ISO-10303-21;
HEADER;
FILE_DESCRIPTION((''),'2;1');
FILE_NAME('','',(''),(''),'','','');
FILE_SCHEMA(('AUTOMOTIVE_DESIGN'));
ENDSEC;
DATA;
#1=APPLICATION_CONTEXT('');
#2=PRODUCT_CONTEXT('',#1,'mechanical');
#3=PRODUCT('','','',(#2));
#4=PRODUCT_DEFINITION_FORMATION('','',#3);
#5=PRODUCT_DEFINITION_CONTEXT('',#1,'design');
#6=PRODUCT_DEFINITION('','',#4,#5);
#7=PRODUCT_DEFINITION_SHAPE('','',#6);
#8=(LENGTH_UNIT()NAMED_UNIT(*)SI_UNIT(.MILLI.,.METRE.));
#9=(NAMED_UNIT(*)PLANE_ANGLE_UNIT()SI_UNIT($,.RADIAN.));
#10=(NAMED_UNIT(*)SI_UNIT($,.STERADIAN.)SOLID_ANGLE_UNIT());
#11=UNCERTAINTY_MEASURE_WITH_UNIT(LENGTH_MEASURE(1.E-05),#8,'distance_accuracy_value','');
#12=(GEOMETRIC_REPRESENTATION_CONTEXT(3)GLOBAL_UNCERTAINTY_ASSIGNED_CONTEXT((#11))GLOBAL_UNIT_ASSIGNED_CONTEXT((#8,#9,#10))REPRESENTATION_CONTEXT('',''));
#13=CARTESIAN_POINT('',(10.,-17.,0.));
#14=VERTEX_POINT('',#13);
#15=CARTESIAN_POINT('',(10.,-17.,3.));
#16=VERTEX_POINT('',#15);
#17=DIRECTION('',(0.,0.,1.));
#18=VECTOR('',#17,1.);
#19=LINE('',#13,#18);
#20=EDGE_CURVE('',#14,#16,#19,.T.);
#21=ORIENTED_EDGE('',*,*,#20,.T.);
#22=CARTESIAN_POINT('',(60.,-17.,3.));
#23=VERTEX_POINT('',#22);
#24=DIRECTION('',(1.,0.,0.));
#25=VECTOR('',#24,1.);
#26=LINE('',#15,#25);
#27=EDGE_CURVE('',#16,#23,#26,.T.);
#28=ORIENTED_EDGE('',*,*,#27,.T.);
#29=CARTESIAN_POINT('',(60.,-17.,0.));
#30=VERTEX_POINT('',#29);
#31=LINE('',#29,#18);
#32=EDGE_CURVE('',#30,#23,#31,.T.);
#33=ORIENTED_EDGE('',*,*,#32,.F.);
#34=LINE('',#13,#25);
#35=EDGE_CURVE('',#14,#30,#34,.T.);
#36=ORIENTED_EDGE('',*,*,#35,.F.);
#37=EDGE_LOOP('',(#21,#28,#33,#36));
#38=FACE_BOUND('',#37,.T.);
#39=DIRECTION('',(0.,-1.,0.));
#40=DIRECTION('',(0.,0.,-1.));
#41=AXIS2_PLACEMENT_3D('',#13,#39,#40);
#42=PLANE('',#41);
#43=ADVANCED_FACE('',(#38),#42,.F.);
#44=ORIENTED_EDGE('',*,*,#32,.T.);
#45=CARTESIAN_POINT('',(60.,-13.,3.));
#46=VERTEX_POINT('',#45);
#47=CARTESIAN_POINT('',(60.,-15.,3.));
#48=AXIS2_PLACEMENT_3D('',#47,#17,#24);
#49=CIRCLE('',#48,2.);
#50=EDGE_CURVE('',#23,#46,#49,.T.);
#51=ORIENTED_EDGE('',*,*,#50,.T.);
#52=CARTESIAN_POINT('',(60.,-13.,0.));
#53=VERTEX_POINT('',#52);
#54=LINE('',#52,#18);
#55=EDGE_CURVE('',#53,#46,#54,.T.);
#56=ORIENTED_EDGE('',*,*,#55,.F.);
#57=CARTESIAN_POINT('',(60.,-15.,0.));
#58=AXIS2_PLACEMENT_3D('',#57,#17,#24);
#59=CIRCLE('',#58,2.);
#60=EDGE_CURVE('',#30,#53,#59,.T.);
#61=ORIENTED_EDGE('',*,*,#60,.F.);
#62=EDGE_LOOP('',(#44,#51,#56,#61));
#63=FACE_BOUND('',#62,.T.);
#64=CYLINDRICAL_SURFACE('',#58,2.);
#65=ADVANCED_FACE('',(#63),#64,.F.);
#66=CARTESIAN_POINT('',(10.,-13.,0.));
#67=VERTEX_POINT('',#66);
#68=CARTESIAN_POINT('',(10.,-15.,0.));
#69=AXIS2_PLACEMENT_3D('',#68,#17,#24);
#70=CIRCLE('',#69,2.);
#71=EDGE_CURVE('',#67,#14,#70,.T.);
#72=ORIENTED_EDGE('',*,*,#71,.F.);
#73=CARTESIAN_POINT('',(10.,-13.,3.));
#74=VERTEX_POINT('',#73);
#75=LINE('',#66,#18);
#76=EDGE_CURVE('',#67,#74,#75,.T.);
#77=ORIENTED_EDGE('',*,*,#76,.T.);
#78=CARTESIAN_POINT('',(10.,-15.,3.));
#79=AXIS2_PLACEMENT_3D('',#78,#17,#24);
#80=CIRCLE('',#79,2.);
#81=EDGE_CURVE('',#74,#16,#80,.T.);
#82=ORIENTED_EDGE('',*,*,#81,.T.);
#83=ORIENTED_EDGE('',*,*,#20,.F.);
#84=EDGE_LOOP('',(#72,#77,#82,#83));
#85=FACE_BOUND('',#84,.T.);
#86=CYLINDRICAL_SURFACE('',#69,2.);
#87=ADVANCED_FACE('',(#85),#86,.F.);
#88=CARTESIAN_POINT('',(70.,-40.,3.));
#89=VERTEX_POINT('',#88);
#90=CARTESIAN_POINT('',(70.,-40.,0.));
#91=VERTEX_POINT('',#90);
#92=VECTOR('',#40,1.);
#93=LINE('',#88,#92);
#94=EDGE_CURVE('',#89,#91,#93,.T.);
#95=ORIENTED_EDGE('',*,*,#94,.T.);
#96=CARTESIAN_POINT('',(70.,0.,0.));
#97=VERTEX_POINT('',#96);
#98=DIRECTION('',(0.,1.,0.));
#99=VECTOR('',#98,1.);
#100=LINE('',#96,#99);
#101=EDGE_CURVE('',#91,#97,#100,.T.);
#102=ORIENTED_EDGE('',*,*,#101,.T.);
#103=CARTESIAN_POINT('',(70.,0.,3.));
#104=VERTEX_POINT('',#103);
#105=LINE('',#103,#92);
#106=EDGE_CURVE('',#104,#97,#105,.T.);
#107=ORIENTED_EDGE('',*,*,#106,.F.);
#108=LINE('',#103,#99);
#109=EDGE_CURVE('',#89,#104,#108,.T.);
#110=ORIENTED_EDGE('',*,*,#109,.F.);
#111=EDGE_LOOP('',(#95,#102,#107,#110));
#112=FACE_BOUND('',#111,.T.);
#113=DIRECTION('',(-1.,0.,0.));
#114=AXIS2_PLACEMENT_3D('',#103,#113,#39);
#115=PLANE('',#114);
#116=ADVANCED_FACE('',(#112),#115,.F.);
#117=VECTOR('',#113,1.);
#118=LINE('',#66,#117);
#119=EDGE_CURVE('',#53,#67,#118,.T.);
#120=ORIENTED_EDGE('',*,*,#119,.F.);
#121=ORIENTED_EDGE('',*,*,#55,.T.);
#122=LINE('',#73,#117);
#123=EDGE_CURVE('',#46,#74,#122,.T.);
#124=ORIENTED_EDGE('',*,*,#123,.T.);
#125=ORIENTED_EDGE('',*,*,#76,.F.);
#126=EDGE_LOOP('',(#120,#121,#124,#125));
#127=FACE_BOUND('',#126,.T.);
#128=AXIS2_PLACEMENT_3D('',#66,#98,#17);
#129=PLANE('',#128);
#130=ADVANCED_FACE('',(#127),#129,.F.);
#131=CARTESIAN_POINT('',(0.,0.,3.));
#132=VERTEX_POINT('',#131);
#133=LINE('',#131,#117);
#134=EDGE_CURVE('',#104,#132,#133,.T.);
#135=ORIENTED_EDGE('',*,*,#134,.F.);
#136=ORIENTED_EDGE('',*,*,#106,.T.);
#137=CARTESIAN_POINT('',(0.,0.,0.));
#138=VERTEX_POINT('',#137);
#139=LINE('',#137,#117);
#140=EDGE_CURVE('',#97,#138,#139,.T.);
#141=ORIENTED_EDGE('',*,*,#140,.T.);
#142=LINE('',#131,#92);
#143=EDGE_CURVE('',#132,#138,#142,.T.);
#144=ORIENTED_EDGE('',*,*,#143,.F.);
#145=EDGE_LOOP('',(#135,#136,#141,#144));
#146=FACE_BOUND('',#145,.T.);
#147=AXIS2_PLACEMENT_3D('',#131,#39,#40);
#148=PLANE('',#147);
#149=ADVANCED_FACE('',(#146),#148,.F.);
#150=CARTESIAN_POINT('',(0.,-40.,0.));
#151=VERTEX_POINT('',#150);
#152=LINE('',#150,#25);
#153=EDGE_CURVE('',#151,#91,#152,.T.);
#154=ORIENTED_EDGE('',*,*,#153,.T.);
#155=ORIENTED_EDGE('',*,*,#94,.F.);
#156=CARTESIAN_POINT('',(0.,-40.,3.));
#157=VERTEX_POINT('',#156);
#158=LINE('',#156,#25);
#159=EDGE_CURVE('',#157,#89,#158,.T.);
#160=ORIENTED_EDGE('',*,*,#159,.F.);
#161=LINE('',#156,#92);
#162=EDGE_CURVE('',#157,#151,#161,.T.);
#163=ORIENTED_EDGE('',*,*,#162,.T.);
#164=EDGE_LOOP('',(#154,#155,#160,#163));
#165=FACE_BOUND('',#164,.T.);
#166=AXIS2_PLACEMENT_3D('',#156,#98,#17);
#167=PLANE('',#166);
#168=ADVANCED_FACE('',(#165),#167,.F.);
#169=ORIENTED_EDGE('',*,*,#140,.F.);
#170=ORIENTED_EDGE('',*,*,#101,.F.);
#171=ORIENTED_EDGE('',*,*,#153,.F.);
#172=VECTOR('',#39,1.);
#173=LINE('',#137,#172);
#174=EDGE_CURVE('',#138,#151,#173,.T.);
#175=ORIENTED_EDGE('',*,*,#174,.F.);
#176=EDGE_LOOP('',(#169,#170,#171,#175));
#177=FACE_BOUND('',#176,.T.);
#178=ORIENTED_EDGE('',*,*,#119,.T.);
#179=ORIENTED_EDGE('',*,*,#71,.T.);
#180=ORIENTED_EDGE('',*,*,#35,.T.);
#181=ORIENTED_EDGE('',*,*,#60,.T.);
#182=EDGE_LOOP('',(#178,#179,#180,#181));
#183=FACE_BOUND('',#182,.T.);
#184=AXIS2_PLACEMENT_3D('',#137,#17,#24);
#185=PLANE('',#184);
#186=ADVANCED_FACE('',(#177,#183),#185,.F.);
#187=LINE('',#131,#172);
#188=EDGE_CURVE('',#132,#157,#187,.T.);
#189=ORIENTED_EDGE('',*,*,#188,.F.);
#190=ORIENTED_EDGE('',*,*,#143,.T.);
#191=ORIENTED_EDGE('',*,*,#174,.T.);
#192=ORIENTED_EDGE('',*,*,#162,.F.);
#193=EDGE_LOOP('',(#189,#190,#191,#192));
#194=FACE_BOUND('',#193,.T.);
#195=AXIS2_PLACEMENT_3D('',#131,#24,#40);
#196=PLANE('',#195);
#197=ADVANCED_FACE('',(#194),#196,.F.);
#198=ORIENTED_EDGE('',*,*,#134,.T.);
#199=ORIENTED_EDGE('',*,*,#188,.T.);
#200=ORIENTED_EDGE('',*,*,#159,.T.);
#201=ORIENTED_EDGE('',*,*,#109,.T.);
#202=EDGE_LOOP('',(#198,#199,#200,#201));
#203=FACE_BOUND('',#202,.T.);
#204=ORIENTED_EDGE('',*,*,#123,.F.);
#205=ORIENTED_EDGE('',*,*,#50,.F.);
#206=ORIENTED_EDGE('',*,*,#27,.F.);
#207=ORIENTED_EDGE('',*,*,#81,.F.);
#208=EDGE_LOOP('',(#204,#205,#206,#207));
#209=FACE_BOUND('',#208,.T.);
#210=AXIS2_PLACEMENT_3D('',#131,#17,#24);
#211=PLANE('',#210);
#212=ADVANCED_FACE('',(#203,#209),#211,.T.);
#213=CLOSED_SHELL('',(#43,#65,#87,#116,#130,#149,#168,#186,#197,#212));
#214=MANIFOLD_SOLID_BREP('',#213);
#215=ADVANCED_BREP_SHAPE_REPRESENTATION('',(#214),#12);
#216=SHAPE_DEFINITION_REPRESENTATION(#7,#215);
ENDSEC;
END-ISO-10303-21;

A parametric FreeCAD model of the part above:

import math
import FreeCAD as App
import Part
import Sketcher
Q = App.Units.Quantity

doc = App.newDocument("Part")
body = doc.addObject("PartDesign::Body", "Body")

sketch1 = body.newObject("Sketcher::SketchObject", "Sketch")
sketch1.AttachmentSupport = (doc.getObject("XY_Plane"), [""])
sketch1.MapMode = "FlatFace"
sketch1.addGeometry([
    Part.LineSegment(App.Vector(0, 0, 0), App.Vector(0, -40, 0)),
    Part.LineSegment(App.Vector(0, -40, 0), App.Vector(70, -40, 0)),
    Part.LineSegment(App.Vector(70, -40, 0), App.Vector(70, 0, 0)),
    Part.LineSegment(App.Vector(70, 0, 0), App.Vector(0, 0, 0)),
], False)
sketch1.addConstraint([
    Sketcher.Constraint("Coincident", 0, 2, 1, 1),
    Sketcher.Constraint("Coincident", 1, 2, 2, 1),
    Sketcher.Constraint("Coincident", 2, 2, 3, 1),
    Sketcher.Constraint("Coincident", 3, 2, 0, 1),
    Sketcher.Constraint("Vertical", 0),
    Sketcher.Constraint("Horizontal", 1),
    Sketcher.Constraint("Vertical", 2),
    Sketcher.Constraint("Horizontal", 3),
    Sketcher.Constraint("Coincident", 3, 2, -1, 1),
    Sketcher.Constraint("DistanceX", 1, 1, 1, 2, Q("70 mm")),
    Sketcher.Constraint("DistanceY", 0, 2, 0, 1, Q("40 mm")),
])
pad1 = body.newObject("PartDesign::Pad", "Pad")
pad1.Profile = sketch1
pad1.Length = 3

sketch2 = body.newObject("Sketcher::SketchObject", "Sketch001")
sketch2.AttachmentSupport = (doc.getObject("XY_Plane"), [""])
sketch2.MapMode = "FlatFace"
sketch2.AttachmentOffset = App.Placement(App.Vector(0, 0, 3), App.Rotation())
sketch2.addGeometry([
    Part.LineSegment(App.Vector(60, -13, 0), App.Vector(10, -13, 0)),
    Part.ArcOfCircle(Part.Circle(App.Vector(10, -15, 0), App.Vector(0, 0, 1), 2), math.radians(90), math.radians(270)),
    Part.LineSegment(App.Vector(10, -17, 0), App.Vector(60, -17, 0)),
    Part.ArcOfCircle(Part.Circle(App.Vector(60, -15, 0), App.Vector(0, 0, 1), 2), math.radians(-90), math.radians(90)),
], False)
sketch2.addConstraint([
    Sketcher.Constraint("Tangent", 0, 2, 1, 1),
    Sketcher.Constraint("Tangent", 1, 2, 2, 1),
    Sketcher.Constraint("Tangent", 2, 2, 3, 1),
    Sketcher.Constraint("Tangent", 3, 2, 0, 1),
    Sketcher.Constraint("Horizontal", 0),
    Sketcher.Constraint("Horizontal", 2),
    Sketcher.Constraint("Radius", 1, Q("2 mm")),
    Sketcher.Constraint("DistanceX", 0, 2, 0, 1, Q("50 mm")),
    Sketcher.Constraint("DistanceX", -1, 1, 1, 3, Q("10 mm")),
    Sketcher.Constraint("DistanceY", 1, 3, -1, 1, Q("15 mm")),
])
pocket1 = body.newObject("PartDesign::Pocket", "Pocket")
pocket1.Profile = sketch2
pocket1.Length = 3

doc.recompute()
